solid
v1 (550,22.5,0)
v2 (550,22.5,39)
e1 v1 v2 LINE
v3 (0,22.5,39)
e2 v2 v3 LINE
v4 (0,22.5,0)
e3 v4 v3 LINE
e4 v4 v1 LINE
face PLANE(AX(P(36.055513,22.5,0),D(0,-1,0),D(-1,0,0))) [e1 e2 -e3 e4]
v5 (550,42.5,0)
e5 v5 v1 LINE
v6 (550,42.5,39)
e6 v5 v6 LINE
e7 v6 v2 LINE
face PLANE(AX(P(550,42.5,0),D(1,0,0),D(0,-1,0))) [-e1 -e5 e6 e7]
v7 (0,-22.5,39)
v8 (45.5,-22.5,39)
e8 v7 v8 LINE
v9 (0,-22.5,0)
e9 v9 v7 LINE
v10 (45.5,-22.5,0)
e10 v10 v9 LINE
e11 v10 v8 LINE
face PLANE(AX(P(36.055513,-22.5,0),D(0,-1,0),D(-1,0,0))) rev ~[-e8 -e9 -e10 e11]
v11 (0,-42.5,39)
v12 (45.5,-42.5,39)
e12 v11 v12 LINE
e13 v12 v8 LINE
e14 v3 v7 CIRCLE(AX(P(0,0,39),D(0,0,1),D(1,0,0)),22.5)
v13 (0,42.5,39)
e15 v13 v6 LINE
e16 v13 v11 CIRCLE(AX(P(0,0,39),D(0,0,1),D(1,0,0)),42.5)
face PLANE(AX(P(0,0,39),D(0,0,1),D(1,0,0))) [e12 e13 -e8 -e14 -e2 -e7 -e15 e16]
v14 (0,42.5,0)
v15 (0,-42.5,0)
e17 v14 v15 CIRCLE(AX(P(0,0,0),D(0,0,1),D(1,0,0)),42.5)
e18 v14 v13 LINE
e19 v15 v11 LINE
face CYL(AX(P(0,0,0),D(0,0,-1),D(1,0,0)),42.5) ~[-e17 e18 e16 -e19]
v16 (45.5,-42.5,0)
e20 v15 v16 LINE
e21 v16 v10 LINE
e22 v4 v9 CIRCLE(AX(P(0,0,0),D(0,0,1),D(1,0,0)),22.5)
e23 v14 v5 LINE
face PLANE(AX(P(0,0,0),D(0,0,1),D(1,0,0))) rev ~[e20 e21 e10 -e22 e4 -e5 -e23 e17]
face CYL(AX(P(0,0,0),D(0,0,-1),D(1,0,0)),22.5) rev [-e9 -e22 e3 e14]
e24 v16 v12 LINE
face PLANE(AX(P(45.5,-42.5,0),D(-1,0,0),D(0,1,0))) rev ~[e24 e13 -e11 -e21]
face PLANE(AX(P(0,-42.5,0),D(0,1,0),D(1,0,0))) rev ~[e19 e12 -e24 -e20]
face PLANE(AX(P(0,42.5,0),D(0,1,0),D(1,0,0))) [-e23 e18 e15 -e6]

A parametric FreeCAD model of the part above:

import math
import FreeCAD as App
import Part
import Sketcher

doc = App.newDocument("Part")
body = doc.addObject("PartDesign::Body", "Body")

sketch1 = body.newObject("Sketcher::SketchObject", "Sketch")
sketch1.AttachmentSupport = (doc.getObject("XY_Plane"), [""])
sketch1.MapMode = "FlatFace"
sketch1.addGeometry(Part.ArcOfCircle(Part.Circle(App.Vector(0, 0, 0), App.Vector(0, 0, 1), 22), math.radians(90), math.radians(270)), False)
sketch1.addGeometry(Part.LineSegment(App.Vector(0, 22, 0), App.Vector(550, 22, 0)), False)
sketch1.addGeometry(Part.LineSegment(App.Vector(550, 22, 0), App.Vector(550, 42, 0)), False)
sketch1.addGeometry(Part.LineSegment(App.Vector(550, 42, 0), App.Vector(0, 42, 0)), False)
sketch1.addGeometry(Part.ArcOfCircle(Part.Circle(App.Vector(0, 0, 0), App.Vector(0, 0, 1), 42), math.radians(90), math.radians(270)), False)
sketch1.addGeometry(Part.LineSegment(App.Vector(0, -42, 0), App.Vector(46, -42, 0)), False)
sketch1.addGeometry(Part.LineSegment(App.Vector(46, -42, 0), App.Vector(46, -22, 0)), False)
sketch1.addGeometry(Part.LineSegment(App.Vector(46, -22, 0), App.Vector(0, -22, 0)), False)
sketch1.addConstraint(Sketcher.Constraint("Tangent", 0, 1, 1, 1))
sketch1.addConstraint(Sketcher.Constraint("Coincident", 1, 2, 2, 1))
sketch1.addConstraint(Sketcher.Constraint("Coincident", 2, 2, 3, 1))
sketch1.addConstraint(Sketcher.Constraint("Tangent", 3, 2, 4, 1))
sketch1.addConstraint(Sketcher.Constraint("Tangent", 4, 2, 5, 1))
sketch1.addConstraint(Sketcher.Constraint("Coincident", 5, 2, 6, 1))
sketch1.addConstraint(Sketcher.Constraint("Coincident", 6, 2, 7, 1))
sketch1.addConstraint(Sketcher.Constraint("Tangent", 7, 2, 0, 2))
sketch1.addConstraint(Sketcher.Constraint("Horizontal", 1))
sketch1.addConstraint(Sketcher.Constraint("Vertical", 2))
sketch1.addConstraint(Sketcher.Constraint("Horizontal", 3))
sketch1.addConstraint(Sketcher.Constraint("Horizontal", 5))
sketch1.addConstraint(Sketcher.Constraint("Vertical", 6))
sketch1.addConstraint(Sketcher.Constraint("Horizontal", 7))
sketch1.addConstraint(Sketcher.Constraint("Coincident", 0, 3, -1, 1))
sketch1.addConstraint(Sketcher.Constraint("Coincident", 4, 3, -1, 1))
sketch1.addConstraint(Sketcher.Constraint("Radius", 4, 42.5))
sketch1.addConstraint(Sketcher.Constraint("DistanceX", 1, 1, 1, 2, 550.0))
sketch1.addConstraint(Sketcher.Constraint("DistanceY", 2, 1, 2, 2, 20.0))
sketch1.addConstraint(Sketcher.Constraint("DistanceX", 5, 1, 5, 2, 45.5))
pad1 = body.newObject("PartDesign::Pad", "Pad")
pad1.Profile = sketch1
pad1.Length = 39

doc.recompute()
